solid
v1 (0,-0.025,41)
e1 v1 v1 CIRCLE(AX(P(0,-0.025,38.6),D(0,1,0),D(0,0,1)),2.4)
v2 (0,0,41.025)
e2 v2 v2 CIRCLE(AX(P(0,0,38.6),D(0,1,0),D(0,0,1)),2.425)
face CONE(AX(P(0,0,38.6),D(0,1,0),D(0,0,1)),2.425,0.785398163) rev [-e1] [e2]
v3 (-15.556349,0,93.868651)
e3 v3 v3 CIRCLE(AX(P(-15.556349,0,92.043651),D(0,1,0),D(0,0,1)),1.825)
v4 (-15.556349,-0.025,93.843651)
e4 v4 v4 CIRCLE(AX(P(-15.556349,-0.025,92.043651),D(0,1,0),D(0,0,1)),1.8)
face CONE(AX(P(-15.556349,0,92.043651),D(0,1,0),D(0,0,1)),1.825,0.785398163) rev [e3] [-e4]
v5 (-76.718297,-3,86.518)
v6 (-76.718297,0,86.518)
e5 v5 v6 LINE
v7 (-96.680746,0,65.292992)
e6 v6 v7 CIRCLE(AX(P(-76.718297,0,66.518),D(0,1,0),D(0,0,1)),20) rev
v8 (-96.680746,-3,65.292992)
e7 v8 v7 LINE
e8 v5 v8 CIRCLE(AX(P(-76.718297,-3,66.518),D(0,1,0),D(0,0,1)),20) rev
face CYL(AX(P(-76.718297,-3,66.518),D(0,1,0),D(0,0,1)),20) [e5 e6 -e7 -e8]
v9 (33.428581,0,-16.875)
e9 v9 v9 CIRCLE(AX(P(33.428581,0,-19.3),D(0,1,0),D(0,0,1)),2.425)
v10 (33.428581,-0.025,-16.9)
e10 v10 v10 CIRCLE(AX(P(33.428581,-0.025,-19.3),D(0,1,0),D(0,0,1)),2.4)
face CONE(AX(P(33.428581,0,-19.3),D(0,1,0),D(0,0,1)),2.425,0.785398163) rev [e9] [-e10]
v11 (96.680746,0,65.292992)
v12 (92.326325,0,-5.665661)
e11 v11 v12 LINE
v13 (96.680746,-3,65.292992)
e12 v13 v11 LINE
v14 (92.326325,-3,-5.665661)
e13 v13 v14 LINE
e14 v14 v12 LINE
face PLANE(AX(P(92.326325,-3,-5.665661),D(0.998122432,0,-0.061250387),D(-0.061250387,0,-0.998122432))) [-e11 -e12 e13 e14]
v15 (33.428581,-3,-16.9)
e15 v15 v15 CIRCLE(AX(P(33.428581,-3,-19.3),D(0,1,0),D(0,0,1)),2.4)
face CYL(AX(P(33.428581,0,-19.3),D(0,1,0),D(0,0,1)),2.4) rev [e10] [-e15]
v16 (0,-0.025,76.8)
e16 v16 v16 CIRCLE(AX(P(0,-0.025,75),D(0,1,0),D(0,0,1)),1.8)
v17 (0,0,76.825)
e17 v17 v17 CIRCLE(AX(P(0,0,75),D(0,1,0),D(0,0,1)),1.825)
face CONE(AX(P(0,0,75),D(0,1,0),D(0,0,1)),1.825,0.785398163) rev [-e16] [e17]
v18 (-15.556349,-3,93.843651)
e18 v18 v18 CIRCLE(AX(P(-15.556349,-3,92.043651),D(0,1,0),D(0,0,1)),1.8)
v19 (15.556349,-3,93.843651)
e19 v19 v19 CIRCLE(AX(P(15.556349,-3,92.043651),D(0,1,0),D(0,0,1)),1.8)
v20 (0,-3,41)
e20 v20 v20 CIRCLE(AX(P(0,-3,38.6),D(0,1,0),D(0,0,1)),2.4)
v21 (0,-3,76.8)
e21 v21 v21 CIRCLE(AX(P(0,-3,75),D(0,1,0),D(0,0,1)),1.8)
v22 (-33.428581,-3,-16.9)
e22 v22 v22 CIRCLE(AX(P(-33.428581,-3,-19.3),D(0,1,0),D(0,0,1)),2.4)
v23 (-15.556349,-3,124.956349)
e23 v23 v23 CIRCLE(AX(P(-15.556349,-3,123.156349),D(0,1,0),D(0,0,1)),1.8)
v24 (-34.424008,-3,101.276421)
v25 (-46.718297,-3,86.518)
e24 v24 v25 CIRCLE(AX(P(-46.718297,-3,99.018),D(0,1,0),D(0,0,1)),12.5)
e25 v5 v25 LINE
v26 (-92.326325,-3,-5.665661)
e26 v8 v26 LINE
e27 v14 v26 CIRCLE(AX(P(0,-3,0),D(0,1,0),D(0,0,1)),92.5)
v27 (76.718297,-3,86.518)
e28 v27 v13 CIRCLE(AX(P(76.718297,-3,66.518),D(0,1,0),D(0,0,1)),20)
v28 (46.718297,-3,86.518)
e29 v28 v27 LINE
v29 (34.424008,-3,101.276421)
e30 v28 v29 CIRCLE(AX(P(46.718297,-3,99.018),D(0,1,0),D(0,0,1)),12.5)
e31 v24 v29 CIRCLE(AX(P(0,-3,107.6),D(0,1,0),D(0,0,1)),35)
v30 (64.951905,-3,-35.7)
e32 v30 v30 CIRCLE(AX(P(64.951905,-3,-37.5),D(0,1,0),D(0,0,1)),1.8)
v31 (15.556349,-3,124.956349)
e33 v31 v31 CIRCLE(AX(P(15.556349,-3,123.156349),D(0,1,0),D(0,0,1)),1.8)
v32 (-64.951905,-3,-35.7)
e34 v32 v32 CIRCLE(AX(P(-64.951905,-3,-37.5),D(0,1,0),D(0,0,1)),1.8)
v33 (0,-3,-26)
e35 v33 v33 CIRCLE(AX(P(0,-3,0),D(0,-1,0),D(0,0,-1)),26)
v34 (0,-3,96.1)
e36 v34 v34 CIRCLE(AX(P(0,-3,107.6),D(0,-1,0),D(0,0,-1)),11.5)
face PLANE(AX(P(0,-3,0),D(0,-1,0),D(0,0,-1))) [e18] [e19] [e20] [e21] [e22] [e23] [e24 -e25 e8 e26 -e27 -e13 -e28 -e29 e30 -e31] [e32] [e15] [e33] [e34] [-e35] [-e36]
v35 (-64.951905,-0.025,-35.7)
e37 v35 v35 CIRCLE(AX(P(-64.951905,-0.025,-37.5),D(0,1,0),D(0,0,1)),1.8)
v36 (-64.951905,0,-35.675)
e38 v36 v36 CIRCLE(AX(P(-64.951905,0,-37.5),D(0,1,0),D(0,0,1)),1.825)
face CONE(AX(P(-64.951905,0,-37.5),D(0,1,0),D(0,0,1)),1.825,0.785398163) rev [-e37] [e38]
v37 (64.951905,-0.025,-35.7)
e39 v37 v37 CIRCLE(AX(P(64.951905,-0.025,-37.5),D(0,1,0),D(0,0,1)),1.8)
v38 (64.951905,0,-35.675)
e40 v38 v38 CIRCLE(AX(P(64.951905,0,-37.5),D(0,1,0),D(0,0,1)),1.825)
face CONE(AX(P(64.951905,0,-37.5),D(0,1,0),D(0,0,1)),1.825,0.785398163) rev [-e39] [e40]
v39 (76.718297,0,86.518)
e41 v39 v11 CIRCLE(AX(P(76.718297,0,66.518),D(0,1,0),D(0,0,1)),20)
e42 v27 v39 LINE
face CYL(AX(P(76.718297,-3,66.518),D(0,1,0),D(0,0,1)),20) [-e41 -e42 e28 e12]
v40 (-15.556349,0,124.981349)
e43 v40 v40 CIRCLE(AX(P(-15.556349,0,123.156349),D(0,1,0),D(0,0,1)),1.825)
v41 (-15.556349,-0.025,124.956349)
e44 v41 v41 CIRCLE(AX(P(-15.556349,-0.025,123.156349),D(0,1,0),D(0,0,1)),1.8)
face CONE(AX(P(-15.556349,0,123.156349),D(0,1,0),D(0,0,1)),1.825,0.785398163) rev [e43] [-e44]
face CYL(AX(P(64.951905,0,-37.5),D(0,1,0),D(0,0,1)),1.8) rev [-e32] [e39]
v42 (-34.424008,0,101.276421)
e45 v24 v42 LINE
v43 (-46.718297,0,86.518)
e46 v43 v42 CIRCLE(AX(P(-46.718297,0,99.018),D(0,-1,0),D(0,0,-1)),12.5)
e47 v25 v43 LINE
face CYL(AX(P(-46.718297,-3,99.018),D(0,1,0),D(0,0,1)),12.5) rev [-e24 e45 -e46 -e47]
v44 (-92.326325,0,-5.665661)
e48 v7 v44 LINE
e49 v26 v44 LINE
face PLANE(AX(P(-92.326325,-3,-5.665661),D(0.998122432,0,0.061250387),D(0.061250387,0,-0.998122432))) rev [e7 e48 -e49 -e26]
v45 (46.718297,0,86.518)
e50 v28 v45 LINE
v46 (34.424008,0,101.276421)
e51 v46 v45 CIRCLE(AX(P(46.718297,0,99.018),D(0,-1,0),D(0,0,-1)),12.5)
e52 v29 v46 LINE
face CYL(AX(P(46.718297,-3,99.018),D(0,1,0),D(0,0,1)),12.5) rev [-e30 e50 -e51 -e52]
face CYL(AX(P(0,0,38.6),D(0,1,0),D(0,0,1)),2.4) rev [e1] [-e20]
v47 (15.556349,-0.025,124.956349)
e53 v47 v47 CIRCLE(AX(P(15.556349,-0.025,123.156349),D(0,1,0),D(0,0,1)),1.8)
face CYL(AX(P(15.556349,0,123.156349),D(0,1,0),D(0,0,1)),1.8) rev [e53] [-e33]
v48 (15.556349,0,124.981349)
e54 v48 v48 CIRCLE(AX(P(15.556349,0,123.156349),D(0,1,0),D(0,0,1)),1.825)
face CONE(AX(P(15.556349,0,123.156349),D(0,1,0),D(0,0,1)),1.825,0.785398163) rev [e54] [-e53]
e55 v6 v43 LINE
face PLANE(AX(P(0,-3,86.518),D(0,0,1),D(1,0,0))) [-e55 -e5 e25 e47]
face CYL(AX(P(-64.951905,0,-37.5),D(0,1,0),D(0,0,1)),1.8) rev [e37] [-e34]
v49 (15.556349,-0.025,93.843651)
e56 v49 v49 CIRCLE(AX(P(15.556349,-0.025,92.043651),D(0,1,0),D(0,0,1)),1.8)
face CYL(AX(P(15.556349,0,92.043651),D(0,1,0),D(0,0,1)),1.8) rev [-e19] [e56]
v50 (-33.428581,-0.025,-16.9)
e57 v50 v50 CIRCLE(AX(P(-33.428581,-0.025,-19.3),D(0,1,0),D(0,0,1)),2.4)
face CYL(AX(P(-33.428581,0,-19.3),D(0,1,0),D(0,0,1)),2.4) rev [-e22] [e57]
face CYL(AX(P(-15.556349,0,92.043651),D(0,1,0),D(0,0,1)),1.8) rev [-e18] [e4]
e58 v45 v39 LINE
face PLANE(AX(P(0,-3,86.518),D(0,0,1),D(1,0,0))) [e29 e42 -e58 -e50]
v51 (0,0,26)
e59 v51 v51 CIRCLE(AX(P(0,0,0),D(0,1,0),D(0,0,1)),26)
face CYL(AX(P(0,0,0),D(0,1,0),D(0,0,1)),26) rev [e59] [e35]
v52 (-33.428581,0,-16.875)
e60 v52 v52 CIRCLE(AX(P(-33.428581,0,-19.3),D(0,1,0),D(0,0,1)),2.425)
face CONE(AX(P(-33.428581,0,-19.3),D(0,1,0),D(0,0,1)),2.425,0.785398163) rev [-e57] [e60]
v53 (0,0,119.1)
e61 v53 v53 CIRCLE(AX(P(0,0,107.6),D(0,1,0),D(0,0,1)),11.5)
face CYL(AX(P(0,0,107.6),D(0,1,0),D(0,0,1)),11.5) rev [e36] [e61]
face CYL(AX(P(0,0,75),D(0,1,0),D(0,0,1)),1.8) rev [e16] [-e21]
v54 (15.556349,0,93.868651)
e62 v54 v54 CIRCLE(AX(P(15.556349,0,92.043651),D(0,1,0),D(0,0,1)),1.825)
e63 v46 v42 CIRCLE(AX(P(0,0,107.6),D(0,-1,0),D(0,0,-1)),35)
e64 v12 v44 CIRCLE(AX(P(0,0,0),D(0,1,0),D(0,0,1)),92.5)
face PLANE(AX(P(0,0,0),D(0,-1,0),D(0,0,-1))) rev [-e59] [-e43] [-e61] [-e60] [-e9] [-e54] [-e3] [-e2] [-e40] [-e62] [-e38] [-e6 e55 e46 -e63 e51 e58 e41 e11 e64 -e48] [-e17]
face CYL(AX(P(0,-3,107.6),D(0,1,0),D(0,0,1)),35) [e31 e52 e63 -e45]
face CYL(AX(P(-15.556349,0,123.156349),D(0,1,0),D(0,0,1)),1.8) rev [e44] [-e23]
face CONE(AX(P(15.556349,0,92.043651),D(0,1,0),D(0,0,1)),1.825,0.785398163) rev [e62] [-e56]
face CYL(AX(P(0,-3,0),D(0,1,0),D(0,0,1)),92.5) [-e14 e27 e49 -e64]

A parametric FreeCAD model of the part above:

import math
import FreeCAD as App
import Part
import Sketcher


def add_polygon(sketch, points):
    """Adds a closed chain of lines whose ends are joined by coincident constraints."""
    first, n = sketch.GeometryCount, len(points)
    for a, b in zip(points, points[1:] + points[:1]):
        sketch.addGeometry(Part.LineSegment(App.Vector(*a, 0), App.Vector(*b, 0)), False)
    for i in range(n):
        sketch.addConstraint(Sketcher.Constraint("Coincident", first + i, 2, first + (i + 1) % n, 1))

doc = App.newDocument("Part")
params = doc.addObject("Spreadsheet::Sheet", "Params")
for row, (alias, value) in enumerate([
    ("sketch1_width", "400 mm"),
    ("pad1_length", "3 mm"),
    ("sketch2_diameter", "52 mm"),
    ("hole_diameter", "52 mm"),
    ("hole_depth", "10 mm"),
    ("sketch3_diameter", "23 mm"),
    ("hole2_diameter", "23 mm"),
    ("hole2_depth", "100 mm"),
    ("sketch4_diameter", "4.8 mm"),
    ("hole3_diameter", "4.8 mm"),
    ("hole3_csink_diameter", "4.85 mm"),
    ("sketch5_diameter", "3.6 mm"),
    ("hole4_diameter", "3.6 mm"),
    ("hole4_csink_diameter", "3.65 mm"),
    ("sketch6_radius", "20 mm"),
    ("sketch6_radius2", "35 mm"),
    ("sketch6_radius3", "12.5 mm"),
    ("sketch6_radius4", "92.5 mm"),
    ("sketch6_width", "30 mm"),
    ("sketch7_diameter", "3.6 mm"),
    ("hole5_diameter", "3.6 mm"),
    ("hole5_csink_diameter", "3.65 mm"),
], start=1):
    params.set(f"A{row}", alias)
    params.set(f"B{row}", "=" + value)
    params.setAlias(f"B{row}", alias)

body = doc.addObject("PartDesign::Body", "Body")

# Sketch on XZ plane
sketch1 = doc.addObject("Sketcher::SketchObject", "Sketch")
body.addObject(sketch1)
sketch1.AttachmentSupport = (doc.XZ_Plane, [""])
sketch1.MapMode = "FlatFace"
add_polygon(sketch1, [(-200, -148), (-200, 252), (200, 252), (200, -148)])  # lines 0-3
sketch1.addConstraint([
    Sketcher.Constraint("Vertical", 0),
    Sketcher.Constraint("Horizontal", 1),
    Sketcher.Constraint("Vertical", 2),
    Sketcher.Constraint("Horizontal", 3),
    Sketcher.Constraint("Equal", 3, 0),
    Sketcher.Constraint("DistanceX", 1, 1, 1, 2, 400.0),
    Sketcher.Constraint("DistanceX", 0, 2, -1, 1, 200.0),
    Sketcher.Constraint("DistanceY", -1, 1, 0, 2, 252.110233),
])
sketch1.setExpression("Constraints[9]", "Params.sketch1_width")
pad1 = doc.addObject("PartDesign::Pad", "Pad")
body.addObject(pad1)
pad1.Profile = sketch1
pad1.setExpression("Length", "Params.pad1_length")

# Sketch on XZ plane
sketch2 = doc.addObject("Sketcher::SketchObject", "Sketch001")
body.addObject(sketch2)
sketch2.AttachmentSupport = (doc.XZ_Plane, [""])
sketch2.MapMode = "FlatFace"
sketch2.addGeometry(Part.Circle(App.Vector(0, 0, 0), App.Vector(0, 0, 1), 26), False)
sketch2.addConstraint([
    Sketcher.Constraint("Coincident", 0, 3, -1, 1),
    Sketcher.Constraint("Diameter", 0, 52.0),
])
sketch2.setExpression("Constraints[1]", "Params.sketch2_diameter")
doc.recompute()
hole = doc.addObject("PartDesign::Hole", "Hole")
body.addObject(hole)
hole.Profile = sketch2
hole.ThreadType = "None"
hole.setExpression("Diameter", "Params.hole_diameter")
hole.DepthType = "Dimension"
hole.setExpression("Depth", "Params.hole_depth")
hole.DrillPoint = "Flat"
hole.Reversed = True

# Sketch on XZ plane
sketch3 = doc.addObject("Sketcher::SketchObject", "Sketch002")
body.addObject(sketch3)
sketch3.AttachmentSupport = (doc.XZ_Plane, [""])
sketch3.MapMode = "FlatFace"
sketch3.addGeometry(Part.Circle(App.Vector(0, 108, 0), App.Vector(0, 0, 1), 12), False)
sketch3.addConstraint([
    Sketcher.Constraint("PointOnObject", 0, 3, -2),
    Sketcher.Constraint("Diameter", 0, 23.0),
    Sketcher.Constraint("DistanceY", -1, 1, 0, 3, 107.6),
])
sketch3.setExpression("Constraints[1]", "Params.sketch3_diameter")
doc.recompute()
hole2 = doc.addObject("PartDesign::Hole", "Hole001")
body.addObject(hole2)
hole2.Profile = sketch3
hole2.ThreadType = "None"
hole2.setExpression("Diameter", "Params.hole2_diameter")
hole2.DepthType = "Dimension"
hole2.setExpression("Depth", "Params.hole2_depth")
hole2.DrillPoint = "Flat"
hole2.Reversed = True

# Sketch on XZ plane
sketch4 = doc.addObject("Sketcher::SketchObject", "Sketch003")
body.addObject(sketch4)
sketch4.AttachmentSupport = (doc.XZ_Plane, [""])
sketch4.MapMode = "FlatFace"
sketch4.addGeometry([
    Part.Circle(App.Vector(0, 38.6, 0), App.Vector(0, 0, 1), 2.4),
    Part.Circle(App.Vector(33.4, -19.3, 0), App.Vector(0, 0, 1), 2.4),
    Part.Circle(App.Vector(-33.4, -19.3, 0), App.Vector(0, 0, 1), 2.4),
], False)
sketch4.addConstraint([
    Sketcher.Constraint("Equal", 0, 1),
    Sketcher.Constraint("Equal", 1, 2),
    Sketcher.Constraint("Symmetric", 1, 3, 2, 3, -2),
    Sketcher.Constraint("PointOnObject", 0, 3, -2),
    Sketcher.Constraint("Diameter", 0, 4.8),
    Sketcher.Constraint("DistanceY", -1, 1, 0, 3, 38.6),
    Sketcher.Constraint("DistanceY", 1, 3, -1, 1, 19.3),
    Sketcher.Constraint("DistanceX", -1, 1, 1, 3, 33.428581),
])
sketch4.setExpression("Constraints[4]", "Params.sketch4_diameter")
doc.recompute()
hole3 = doc.addObject("PartDesign::Hole", "Hole002")
body.addObject(hole3)
hole3.Profile = sketch4
hole3.ThreadType = "None"
hole3.setExpression("Diameter", "Params.hole3_diameter")
hole3.DepthType = "ThroughAll"
hole3.HoleCutType = "Countersink"
hole3.setExpression("HoleCutDiameter", "Params.hole3_csink_diameter")
hole3.HoleCutCountersinkAngle = 90
hole3.Reversed = True

# Sketch on XZ plane
sketch5 = doc.addObject("Sketcher::SketchObject", "Sketch004")
body.addObject(sketch5)
sketch5.AttachmentSupport = (doc.XZ_Plane, [""])
sketch5.MapMode = "FlatFace"
sketch5.addGeometry([
    Part.Circle(App.Vector(15.6, 92, 0), App.Vector(0, 0, 1), 1.8),
    Part.Circle(App.Vector(-15.6, 92, 0), App.Vector(0, 0, 1), 1.8),
    Part.Circle(App.Vector(-15.6, 123.2, 0), App.Vector(0, 0, 1), 1.8),
    Part.Circle(App.Vector(15.6, 123.2, 0), App.Vector(0, 0, 1), 1.8),
], False)
sketch5.addConstraint([
    Sketcher.Constraint("Equal", 0, 1),
    Sketcher.Constraint("Equal", 1, 2),
    Sketcher.Constraint("Equal", 2, 3),
    Sketcher.Constraint("Symmetric", 0, 3, 1, 3, -2),
    Sketcher.Constraint("Symmetric", 2, 3, 3, 3, -2),
    Sketcher.Constraint("Vertical", 1, 3, 2, 3),
    Sketcher.Constraint("Diameter", 0, 3.6),
    Sketcher.Constraint("DistanceX", 1, 3, 0, 3, 31.112698),
    Sketcher.Constraint("DistanceY", 1, 3, 2, 3, 31.112698),
    Sketcher.Constraint("DistanceY", -1, 1, 0, 3, 92.043651),
])
sketch5.setExpression("Constraints[6]", "Params.sketch5_diameter")
doc.recompute()
hole4 = doc.addObject("PartDesign::Hole", "Hole003")
body.addObject(hole4)
hole4.Profile = sketch5
hole4.ThreadType = "None"
hole4.setExpression("Diameter", "Params.hole4_diameter")
hole4.DepthType = "ThroughAll"
hole4.HoleCutType = "Countersink"
hole4.setExpression("HoleCutDiameter", "Params.hole4_csink_diameter")
hole4.HoleCutCountersinkAngle = 90
hole4.Reversed = True

# Sketch on XZ plane
sketch6 = doc.addObject("Sketcher::SketchObject", "Sketch005")
body.addObject(sketch6)
sketch6.AttachmentSupport = (doc.XZ_Plane, [""])
sketch6.MapMode = "FlatFace"
add_polygon(sketch6, [(-362.5, -258), (-362.5, 297.4), (304.8, 297.4), (304.8, -258)])  # lines 0-3
sketch6.addGeometry(Part.ArcOfCircle(Part.Circle(App.Vector(-46.7, 99, 0), App.Vector(0, 0, 1), 12.5), math.radians(-90), math.radians(10)), False)  # 4
sketch6.addGeometry(Part.LineSegment(App.Vector(-46.7, 86.5, 0), App.Vector(-76.7, 86.5, 0)), False)  # 5
sketch6.addGeometry(Part.ArcOfCircle(Part.Circle(App.Vector(-76.7, 66.5, 0), App.Vector(0, 0, 1), 20), math.radians(90), math.radians(184)), False)  # 6
sketch6.addGeometry(Part.LineSegment(App.Vector(-96.7, 65.3, 0), App.Vector(-92.3, -5.7, 0)), False)  # 7
sketch6.addGeometry(Part.ArcOfCircle(Part.Circle(App.Vector(0, 0, 0), App.Vector(0, 0, 1), 92.5), math.radians(-176), math.radians(-4)), False)  # 8
sketch6.addGeometry(Part.LineSegment(App.Vector(92.3, -5.7, 0), App.Vector(96.7, 65.3, 0)), False)  # 9
sketch6.addGeometry(Part.ArcOfCircle(Part.Circle(App.Vector(76.7, 66.5, 0), App.Vector(0, 0, 1), 20), math.radians(-3.51), math.radians(0)), False)  # 10
sketch6.addGeometry(Part.ArcOfCircle(Part.Circle(App.Vector(76.7, 66.5, 0), App.Vector(0, 0, 1), 20), math.radians(0), math.radians(90)), False)  # 11
sketch6.addGeometry(Part.LineSegment(App.Vector(76.7, 86.5, 0), App.Vector(46.7, 86.5, 0)), False)  # 12
sketch6.addGeometry(Part.ArcOfCircle(Part.Circle(App.Vector(46.7, 99, 0), App.Vector(0, 0, 1), 12.5), math.radians(170), math.radians(270)), False)  # 13
sketch6.addGeometry(Part.ArcOfCircle(Part.Circle(App.Vector(0, 107.6, 0), App.Vector(0, 0, 1), 35), math.radians(-10.41), math.radians(0)), False)  # 14
sketch6.addGeometry(Part.ArcOfCircle(Part.Circle(App.Vector(0, 107.6, 0), App.Vector(0, 0, 1), 35), math.radians(0), math.radians(190)), False)  # 15
sketch6.addConstraint([
    Sketcher.Constraint("Tangent", 4, 1, 5, 1),
    Sketcher.Constraint("Tangent", 5, 2, 6, 1),
    Sketcher.Constraint("Tangent", 6, 2, 7, 1),
    Sketcher.Constraint("Tangent", 7, 2, 8, 1),
    Sketcher.Constraint("Tangent", 8, 2, 9, 1),
    Sketcher.Constraint("Tangent", 9, 2, 10, 1),
    Sketcher.Constraint("Tangent", 10, 2, 11, 1),
    Sketcher.Constraint("Tangent", 11, 2, 12, 1),
    Sketcher.Constraint("Tangent", 12, 2, 13, 2),
    Sketcher.Constraint("Tangent", 13, 1, 14, 1),
    Sketcher.Constraint("Tangent", 14, 2, 15, 1),
    Sketcher.Constraint("Tangent", 15, 2, 4, 2),
    Sketcher.Constraint("Vertical", 0),
    Sketcher.Constraint("Horizontal", 1),
    Sketcher.Constraint("Vertical", 2),
    Sketcher.Constraint("Horizontal", 3),
    Sketcher.Constraint("Horizontal", 5),
    Sketcher.Constraint("Horizontal", 12),
    Sketcher.Constraint("Coincident", 8, 3, -1, 1),
    Sketcher.Constraint("Equal", 6, 10),
    Sketcher.Constraint("Equal", 10, 11),
    Sketcher.Constraint("Equal", 4, 13),
    Sketcher.Constraint("Equal", 14, 15),
    Sketcher.Constraint("Symmetric", 6, 3, 10, 3, -2),
    Sketcher.Constraint("PointOnObject", 14, 3, -2),
    Sketcher.Constraint("Horizontal", 11, 3, 10, 2),
    Sketcher.Constraint("Horizontal", 15, 3, 14, 2),
    Sketcher.Constraint("Radius", 6, 20.0),
    Sketcher.Constraint("Radius", 14, 35.0),
    Sketcher.Constraint("Radius", 4, 12.5),
    Sketcher.Constraint("Radius", 8, 92.5),
    Sketcher.Constraint("DistanceX", 5, 2, 5, 1, 30.0),
    Sketcher.Constraint("DistanceY", -1, 1, 14, 3, 107.6),
    Sketcher.Constraint("DistanceY", -1, 1, 4, 3, 99.018),
    Sketcher.Constraint("DistanceX", 1, 1, 1, 2, 667.246369),
    Sketcher.Constraint("DistanceY", 0, 1, 0, 2, 555.388304),
    Sketcher.Constraint("DistanceX", 0, 2, -1, 1, 362.493421),
    Sketcher.Constraint("DistanceY", -1, 1, 0, 2, 297.389076),
])
sketch6.setExpression("Constraints[31]", "Params.sketch6_radius")
sketch6.setExpression("Constraints[32]", "Params.sketch6_radius2")
sketch6.setExpression("Constraints[33]", "Params.sketch6_radius3")
sketch6.setExpression("Constraints[34]", "Params.sketch6_radius4")
sketch6.setExpression("Constraints[35]", "Params.sketch6_width")
pocket1 = doc.addObject("PartDesign::Pocket", "Pocket")
body.addObject(pocket1)
pocket1.Profile = sketch6
pocket1.Type = "ThroughAll"
pocket1.Midplane = True

# Sketch on XZ plane
sketch7 = doc.addObject("Sketcher::SketchObject", "Sketch006")
body.addObject(sketch7)
sketch7.AttachmentSupport = (doc.XZ_Plane, [""])
sketch7.MapMode = "FlatFace"
sketch7.addGeometry([
    Part.Circle(App.Vector(-65, -37.5, 0), App.Vector(0, 0, 1), 1.8),
    Part.Circle(App.Vector(0, 75, 0), App.Vector(0, 0, 1), 1.8),
    Part.Circle(App.Vector(65, -37.5, 0), App.Vector(0, 0, 1), 1.8),
], False)
sketch7.addConstraint([
    Sketcher.Constraint("Equal", 0, 1),
    Sketcher.Constraint("Equal", 1, 2),
    Sketcher.Constraint("Symmetric", 0, 3, 2, 3, -2),
    Sketcher.Constraint("PointOnObject", 1, 3, -2),
    Sketcher.Constraint("Diameter", 0, 3.6),
    Sketcher.Constraint("DistanceY", -1, 1, 1, 3, 75.0),
    Sketcher.Constraint("DistanceY", 0, 3, -1, 1, 37.5),
    Sketcher.Constraint("DistanceX", 0, 3, 2, 3, 129.903811),
])
sketch7.setExpression("Constraints[4]", "Params.sketch7_diameter")
doc.recompute()
hole5 = doc.addObject("PartDesign::Hole", "Hole004")
body.addObject(hole5)
hole5.Profile = sketch7
hole5.ThreadType = "None"
hole5.setExpression("Diameter", "Params.hole5_diameter")
hole5.DepthType = "ThroughAll"
hole5.HoleCutType = "Countersink"
hole5.setExpression("HoleCutDiameter", "Params.hole5_csink_diameter")
hole5.HoleCutCountersinkAngle = 90
hole5.Reversed = True

doc.recompute()
